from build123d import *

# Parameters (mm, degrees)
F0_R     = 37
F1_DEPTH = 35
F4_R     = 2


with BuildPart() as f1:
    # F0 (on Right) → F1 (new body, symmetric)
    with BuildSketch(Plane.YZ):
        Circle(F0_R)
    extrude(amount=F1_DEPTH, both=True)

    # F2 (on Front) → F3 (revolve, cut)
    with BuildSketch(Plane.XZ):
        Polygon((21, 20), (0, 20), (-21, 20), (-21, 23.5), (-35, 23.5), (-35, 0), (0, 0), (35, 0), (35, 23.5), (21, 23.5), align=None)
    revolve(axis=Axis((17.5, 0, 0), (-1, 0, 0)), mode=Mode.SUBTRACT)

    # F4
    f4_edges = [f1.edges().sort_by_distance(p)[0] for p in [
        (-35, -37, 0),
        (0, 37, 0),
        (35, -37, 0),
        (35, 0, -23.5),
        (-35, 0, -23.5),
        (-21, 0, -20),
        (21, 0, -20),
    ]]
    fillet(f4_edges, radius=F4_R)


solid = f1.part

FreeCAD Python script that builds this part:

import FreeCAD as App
import Part
import Sketcher

V = App.Vector
Q = App.Units.Quantity


def edges_at(feature, points):
    """Names of the edges that pass closest to the given points."""
    edges = feature.Shape.Edges
    near = lambda p: min(range(len(edges)), key=lambda i: edges[i].distToShape(Part.Vertex(*p))[0])
    return sorted({f"Edge{near(p) + 1}" for p in points})


def add_polygon(sketch, points):
    """Adds a closed chain of lines whose ends are joined by coincident constraints."""
    first, n = sketch.GeometryCount, len(points)
    for a, b in zip(points, points[1:] + points[:1]):
        sketch.addGeometry(Part.LineSegment(App.Vector(*a, 0), App.Vector(*b, 0)), False)
    for i in range(n):
        sketch.addConstraint(Sketcher.Constraint("Coincident", first + i, 2, first + (i + 1) % n, 1))

doc = App.newDocument("Part")
body = doc.addObject("PartDesign::Body", "Body")

# Sketch on YZ plane
sketch1 = doc.addObject("Sketcher::SketchObject", "Sketch")
body.addObject(sketch1)
sketch1.AttachmentSupport = (doc.YZ_Plane, [""])
sketch1.MapMode = "FlatFace"
sketch1.addGeometry(Part.Circle(V(0, 0, 0), V(0, 0, 1), 37), False)
sketch1.addConstraint([
    Sketcher.Constraint("Coincident", 0, 3, -1, 1),
    Sketcher.Constraint("Diameter", 0, Q("74 mm")),
])
pad1 = doc.addObject("PartDesign::Pad", "Pad")
body.addObject(pad1)
pad1.Profile = sketch1
pad1.Length = 70
pad1.Midplane = True

# Sketch on XZ plane
sketch2 = doc.addObject("Sketcher::SketchObject", "Sketch001")
body.addObject(sketch2)
sketch2.AttachmentSupport = (doc.XZ_Plane, [""])
sketch2.MapMode = "FlatFace"
add_polygon(sketch2, [(21, 20), (-21, 20), (-21, 23.5), (-35, 23.5), (-35, 0), (35, 0), (35, 23.5), (21, 23.5)])  # lines 0-7
sketch2.addConstraint([
    Sketcher.Constraint("Horizontal", 0),
    Sketcher.Constraint("Vertical", 1),
    Sketcher.Constraint("Horizontal", 2),
    Sketcher.Constraint("Vertical", 3),
    Sketcher.Constraint("Horizontal", 4),
    Sketcher.Constraint("Vertical", 5),
    Sketcher.Constraint("Horizontal", 6),
    Sketcher.Constraint("Vertical", 7),
    Sketcher.Constraint("Symmetric", 3, 2, 4, 2, -1, 1),
    Sketcher.Constraint("Symmetric", 1, 2, 6, 2, -2),
    Sketcher.Constraint("DistanceX", 0, 2, 0, 1, Q("42 mm")),
    Sketcher.Constraint("DistanceX", 2, 2, 2, 1, Q("14 mm")),
    Sketcher.Constraint("DistanceY", 1, 1, 1, 2, Q("3.5 mm")),
    Sketcher.Constraint("DistanceY", 3, 2, 3, 1, Q("23.5 mm")),
])
groove = doc.addObject("PartDesign::Groove", "Groove")
body.addObject(groove)
groove.Profile = sketch2
groove.ReferenceAxis = (sketch2, ["H_Axis"])
groove.Angle = 360
doc.recompute()

fillet = doc.addObject("PartDesign::Fillet", "Fillet")
body.addObject(fillet)
fillet.Base = (groove, edges_at(groove, [
    (-35, -37, 0),
    (0, 37, 0),
    (35, -37, 0),
    (35, 0, -23.5),
    (-35, 0, -23.5),
    (-21, 0, -20),
    (21, 0, -20),
]))
fillet.Radius = 2

doc.recompute()
